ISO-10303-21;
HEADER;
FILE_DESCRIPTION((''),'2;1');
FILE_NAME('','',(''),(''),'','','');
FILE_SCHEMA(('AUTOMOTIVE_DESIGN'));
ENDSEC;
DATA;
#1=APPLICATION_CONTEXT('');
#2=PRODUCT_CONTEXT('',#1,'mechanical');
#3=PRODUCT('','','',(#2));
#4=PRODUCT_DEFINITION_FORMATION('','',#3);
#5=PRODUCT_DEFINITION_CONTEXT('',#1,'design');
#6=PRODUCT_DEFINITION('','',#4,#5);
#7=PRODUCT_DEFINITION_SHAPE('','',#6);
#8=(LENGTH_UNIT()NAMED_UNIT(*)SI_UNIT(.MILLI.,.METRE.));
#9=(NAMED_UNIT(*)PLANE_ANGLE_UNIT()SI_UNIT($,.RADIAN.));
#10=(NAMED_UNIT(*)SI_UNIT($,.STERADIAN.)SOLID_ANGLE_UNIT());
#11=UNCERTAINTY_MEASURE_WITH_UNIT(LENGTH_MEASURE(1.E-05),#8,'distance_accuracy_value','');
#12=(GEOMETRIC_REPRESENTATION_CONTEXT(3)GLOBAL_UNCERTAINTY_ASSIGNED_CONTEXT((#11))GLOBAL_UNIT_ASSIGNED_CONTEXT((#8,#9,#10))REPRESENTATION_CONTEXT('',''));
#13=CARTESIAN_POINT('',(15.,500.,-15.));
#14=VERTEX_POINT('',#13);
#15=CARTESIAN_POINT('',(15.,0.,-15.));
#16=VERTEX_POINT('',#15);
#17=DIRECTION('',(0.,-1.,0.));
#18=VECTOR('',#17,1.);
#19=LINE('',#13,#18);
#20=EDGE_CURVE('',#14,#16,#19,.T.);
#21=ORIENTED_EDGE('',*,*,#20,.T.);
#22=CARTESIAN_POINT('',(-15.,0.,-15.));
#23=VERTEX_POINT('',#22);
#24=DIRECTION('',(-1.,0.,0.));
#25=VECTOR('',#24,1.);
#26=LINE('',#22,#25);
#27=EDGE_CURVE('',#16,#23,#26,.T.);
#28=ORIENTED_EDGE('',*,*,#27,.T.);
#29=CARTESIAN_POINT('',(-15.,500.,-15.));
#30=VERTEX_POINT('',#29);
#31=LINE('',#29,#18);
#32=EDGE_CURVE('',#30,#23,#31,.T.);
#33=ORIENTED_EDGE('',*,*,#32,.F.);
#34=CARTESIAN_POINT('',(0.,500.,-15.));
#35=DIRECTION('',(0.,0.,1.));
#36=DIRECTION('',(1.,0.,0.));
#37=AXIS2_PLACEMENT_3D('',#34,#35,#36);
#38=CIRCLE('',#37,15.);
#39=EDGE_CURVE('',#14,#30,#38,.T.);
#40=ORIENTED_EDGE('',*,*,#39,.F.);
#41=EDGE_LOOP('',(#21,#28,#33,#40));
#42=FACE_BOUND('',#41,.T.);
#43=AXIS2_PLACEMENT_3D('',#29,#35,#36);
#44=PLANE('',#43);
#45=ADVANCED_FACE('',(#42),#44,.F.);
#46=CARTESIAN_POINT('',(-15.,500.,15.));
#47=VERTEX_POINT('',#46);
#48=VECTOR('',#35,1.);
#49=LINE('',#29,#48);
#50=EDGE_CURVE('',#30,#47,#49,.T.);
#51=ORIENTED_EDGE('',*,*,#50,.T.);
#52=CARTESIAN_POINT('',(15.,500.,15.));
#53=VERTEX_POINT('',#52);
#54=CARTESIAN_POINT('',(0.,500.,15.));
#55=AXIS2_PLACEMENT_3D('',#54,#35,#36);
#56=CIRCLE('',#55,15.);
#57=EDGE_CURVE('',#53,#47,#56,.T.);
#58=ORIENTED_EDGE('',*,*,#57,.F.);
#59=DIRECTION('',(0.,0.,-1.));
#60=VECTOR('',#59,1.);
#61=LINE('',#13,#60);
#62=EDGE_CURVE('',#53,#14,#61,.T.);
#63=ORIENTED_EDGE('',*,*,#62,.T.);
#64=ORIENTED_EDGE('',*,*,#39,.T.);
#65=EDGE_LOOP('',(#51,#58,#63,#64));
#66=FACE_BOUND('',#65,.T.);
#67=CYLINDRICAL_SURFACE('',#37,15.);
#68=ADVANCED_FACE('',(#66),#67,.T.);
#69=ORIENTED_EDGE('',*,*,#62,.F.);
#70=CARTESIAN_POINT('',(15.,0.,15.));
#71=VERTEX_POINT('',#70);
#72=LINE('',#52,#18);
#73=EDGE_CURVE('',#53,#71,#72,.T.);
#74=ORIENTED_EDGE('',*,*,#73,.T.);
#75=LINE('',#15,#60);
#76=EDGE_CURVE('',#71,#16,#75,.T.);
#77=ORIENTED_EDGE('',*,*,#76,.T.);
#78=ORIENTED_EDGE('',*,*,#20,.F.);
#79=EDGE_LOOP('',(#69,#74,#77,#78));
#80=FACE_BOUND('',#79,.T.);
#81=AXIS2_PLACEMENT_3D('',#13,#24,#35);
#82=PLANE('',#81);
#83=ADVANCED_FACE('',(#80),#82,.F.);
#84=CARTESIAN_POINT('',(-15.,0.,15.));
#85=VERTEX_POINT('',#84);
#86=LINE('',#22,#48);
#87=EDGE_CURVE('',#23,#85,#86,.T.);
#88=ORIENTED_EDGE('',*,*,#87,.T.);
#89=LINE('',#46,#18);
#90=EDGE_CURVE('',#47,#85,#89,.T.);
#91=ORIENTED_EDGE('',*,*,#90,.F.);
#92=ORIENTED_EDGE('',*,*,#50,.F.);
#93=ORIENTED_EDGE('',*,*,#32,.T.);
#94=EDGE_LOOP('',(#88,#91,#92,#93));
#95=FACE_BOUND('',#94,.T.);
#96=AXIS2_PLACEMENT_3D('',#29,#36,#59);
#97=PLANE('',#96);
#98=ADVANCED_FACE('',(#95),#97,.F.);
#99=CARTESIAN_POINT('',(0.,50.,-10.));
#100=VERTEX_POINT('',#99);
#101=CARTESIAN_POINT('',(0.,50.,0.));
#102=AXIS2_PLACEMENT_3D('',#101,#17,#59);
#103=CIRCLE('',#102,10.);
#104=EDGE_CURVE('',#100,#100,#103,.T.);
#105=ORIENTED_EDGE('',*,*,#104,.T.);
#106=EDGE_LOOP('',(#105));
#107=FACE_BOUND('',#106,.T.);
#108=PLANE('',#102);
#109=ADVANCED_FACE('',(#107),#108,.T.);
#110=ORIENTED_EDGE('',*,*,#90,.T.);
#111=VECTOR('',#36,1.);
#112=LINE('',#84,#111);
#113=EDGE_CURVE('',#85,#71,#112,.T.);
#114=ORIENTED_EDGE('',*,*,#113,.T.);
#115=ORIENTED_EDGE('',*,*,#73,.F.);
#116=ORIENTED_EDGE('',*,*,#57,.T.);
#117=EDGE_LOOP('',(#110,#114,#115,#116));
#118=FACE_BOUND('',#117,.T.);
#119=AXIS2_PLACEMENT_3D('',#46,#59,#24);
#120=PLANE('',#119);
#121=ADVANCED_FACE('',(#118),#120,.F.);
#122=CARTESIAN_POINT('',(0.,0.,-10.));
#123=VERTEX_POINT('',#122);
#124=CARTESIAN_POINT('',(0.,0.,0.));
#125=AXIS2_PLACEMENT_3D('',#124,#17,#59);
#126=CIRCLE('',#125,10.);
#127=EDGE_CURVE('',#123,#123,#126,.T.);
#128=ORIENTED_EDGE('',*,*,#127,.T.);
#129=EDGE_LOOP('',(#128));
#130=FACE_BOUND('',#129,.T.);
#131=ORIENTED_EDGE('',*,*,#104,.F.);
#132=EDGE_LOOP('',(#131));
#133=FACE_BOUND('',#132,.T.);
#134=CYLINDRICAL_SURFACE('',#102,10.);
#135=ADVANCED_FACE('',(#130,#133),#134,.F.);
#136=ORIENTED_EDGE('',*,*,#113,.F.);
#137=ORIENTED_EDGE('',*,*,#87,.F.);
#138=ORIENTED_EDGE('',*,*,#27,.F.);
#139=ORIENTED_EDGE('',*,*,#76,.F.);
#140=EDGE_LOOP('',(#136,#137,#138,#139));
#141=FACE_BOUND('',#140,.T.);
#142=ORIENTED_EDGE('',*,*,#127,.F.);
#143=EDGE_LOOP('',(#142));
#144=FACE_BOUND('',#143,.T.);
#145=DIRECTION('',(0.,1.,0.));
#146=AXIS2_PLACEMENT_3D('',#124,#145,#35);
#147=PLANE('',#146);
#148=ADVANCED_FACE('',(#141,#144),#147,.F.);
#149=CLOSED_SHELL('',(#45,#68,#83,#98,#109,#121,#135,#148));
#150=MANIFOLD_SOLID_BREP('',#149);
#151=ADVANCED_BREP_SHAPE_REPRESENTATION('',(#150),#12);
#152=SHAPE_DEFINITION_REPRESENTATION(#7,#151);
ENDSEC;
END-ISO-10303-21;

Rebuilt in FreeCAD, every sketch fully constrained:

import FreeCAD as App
import Part
import Sketcher

V = App.Vector


def add_polygon(sketch, points):
    """Adds a closed chain of lines whose ends are joined by coincident constraints."""
    first, n = sketch.GeometryCount, len(points)
    for a, b in zip(points, points[1:] + points[:1]):
        sketch.addGeometry(Part.LineSegment(App.Vector(*a, 0), App.Vector(*b, 0)), False)
    for i in range(n):
        sketch.addConstraint(Sketcher.Constraint("Coincident", first + i, 2, first + (i + 1) % n, 1))

doc = App.newDocument("Part")
body = doc.addObject("PartDesign::Body", "Body")

sketch1 = body.newObject("Sketcher::SketchObject", "Sketch")
sketch1.AttachmentSupport = (doc.getObject("XZ_Plane"), [""])
sketch1.MapMode = "FlatFace"
add_polygon(sketch1, [(-15, -15), (-15, 15), (15, 15), (15, -15)])
sketch1.addConstraint([
    Sketcher.Constraint("Vertical", 0),
    Sketcher.Constraint("Horizontal", 1),
    Sketcher.Constraint("Vertical", 2),
    Sketcher.Constraint("Horizontal", 3),
    Sketcher.Constraint("Symmetric", 0, 2, 2, 2, -1, 1),
    Sketcher.Constraint("Equal", 3, 0),
    Sketcher.Constraint("DistanceX", 1, 1, 1, 2, 30.0),
])
pad1 = body.newObject("PartDesign::Pad", "Pad")
pad1.Profile = sketch1
pad1.Length = 500
pad1.Reversed = True

sketch2 = body.newObject("Sketcher::SketchObject", "Sketch001")
sketch2.AttachmentSupport = (doc.getObject("XY_Plane"), [""])
sketch2.MapMode = "FlatFace"
sketch2.AttachmentOffset = App.Placement(V(0, 0, 15), App.Rotation())
sketch2.addGeometry(Part.Circle(V(0, 500, 0), V(0, 0, 1), 15), False)
sketch2.addConstraint([
    Sketcher.Constraint("PointOnObject", 0, 3, -2),
    Sketcher.Constraint("Diameter", 0, 30.0),
    Sketcher.Constraint("DistanceY", -1, 1, 0, 3, 500.0),
])
pad2 = body.newObject("PartDesign::Pad", "Pad001")
pad2.Profile = sketch2
pad2.Length = 30
pad2.Reversed = True

sketch3 = body.newObject("Sketcher::SketchObject", "Sketch002")
sketch3.AttachmentSupport = (doc.getObject("XZ_Plane"), [""])
sketch3.MapMode = "FlatFace"
sketch3.addGeometry(Part.Circle(V(0, 0, 0), V(0, 0, 1), 10), False)
sketch3.addConstraint([
    Sketcher.Constraint("Coincident", 0, 3, -1, 1),
    Sketcher.Constraint("Diameter", 0, 20.0),
])
pocket1 = body.newObject("PartDesign::Pocket", "Pocket")
pocket1.Profile = sketch3
pocket1.Length = 50

doc.recompute()
